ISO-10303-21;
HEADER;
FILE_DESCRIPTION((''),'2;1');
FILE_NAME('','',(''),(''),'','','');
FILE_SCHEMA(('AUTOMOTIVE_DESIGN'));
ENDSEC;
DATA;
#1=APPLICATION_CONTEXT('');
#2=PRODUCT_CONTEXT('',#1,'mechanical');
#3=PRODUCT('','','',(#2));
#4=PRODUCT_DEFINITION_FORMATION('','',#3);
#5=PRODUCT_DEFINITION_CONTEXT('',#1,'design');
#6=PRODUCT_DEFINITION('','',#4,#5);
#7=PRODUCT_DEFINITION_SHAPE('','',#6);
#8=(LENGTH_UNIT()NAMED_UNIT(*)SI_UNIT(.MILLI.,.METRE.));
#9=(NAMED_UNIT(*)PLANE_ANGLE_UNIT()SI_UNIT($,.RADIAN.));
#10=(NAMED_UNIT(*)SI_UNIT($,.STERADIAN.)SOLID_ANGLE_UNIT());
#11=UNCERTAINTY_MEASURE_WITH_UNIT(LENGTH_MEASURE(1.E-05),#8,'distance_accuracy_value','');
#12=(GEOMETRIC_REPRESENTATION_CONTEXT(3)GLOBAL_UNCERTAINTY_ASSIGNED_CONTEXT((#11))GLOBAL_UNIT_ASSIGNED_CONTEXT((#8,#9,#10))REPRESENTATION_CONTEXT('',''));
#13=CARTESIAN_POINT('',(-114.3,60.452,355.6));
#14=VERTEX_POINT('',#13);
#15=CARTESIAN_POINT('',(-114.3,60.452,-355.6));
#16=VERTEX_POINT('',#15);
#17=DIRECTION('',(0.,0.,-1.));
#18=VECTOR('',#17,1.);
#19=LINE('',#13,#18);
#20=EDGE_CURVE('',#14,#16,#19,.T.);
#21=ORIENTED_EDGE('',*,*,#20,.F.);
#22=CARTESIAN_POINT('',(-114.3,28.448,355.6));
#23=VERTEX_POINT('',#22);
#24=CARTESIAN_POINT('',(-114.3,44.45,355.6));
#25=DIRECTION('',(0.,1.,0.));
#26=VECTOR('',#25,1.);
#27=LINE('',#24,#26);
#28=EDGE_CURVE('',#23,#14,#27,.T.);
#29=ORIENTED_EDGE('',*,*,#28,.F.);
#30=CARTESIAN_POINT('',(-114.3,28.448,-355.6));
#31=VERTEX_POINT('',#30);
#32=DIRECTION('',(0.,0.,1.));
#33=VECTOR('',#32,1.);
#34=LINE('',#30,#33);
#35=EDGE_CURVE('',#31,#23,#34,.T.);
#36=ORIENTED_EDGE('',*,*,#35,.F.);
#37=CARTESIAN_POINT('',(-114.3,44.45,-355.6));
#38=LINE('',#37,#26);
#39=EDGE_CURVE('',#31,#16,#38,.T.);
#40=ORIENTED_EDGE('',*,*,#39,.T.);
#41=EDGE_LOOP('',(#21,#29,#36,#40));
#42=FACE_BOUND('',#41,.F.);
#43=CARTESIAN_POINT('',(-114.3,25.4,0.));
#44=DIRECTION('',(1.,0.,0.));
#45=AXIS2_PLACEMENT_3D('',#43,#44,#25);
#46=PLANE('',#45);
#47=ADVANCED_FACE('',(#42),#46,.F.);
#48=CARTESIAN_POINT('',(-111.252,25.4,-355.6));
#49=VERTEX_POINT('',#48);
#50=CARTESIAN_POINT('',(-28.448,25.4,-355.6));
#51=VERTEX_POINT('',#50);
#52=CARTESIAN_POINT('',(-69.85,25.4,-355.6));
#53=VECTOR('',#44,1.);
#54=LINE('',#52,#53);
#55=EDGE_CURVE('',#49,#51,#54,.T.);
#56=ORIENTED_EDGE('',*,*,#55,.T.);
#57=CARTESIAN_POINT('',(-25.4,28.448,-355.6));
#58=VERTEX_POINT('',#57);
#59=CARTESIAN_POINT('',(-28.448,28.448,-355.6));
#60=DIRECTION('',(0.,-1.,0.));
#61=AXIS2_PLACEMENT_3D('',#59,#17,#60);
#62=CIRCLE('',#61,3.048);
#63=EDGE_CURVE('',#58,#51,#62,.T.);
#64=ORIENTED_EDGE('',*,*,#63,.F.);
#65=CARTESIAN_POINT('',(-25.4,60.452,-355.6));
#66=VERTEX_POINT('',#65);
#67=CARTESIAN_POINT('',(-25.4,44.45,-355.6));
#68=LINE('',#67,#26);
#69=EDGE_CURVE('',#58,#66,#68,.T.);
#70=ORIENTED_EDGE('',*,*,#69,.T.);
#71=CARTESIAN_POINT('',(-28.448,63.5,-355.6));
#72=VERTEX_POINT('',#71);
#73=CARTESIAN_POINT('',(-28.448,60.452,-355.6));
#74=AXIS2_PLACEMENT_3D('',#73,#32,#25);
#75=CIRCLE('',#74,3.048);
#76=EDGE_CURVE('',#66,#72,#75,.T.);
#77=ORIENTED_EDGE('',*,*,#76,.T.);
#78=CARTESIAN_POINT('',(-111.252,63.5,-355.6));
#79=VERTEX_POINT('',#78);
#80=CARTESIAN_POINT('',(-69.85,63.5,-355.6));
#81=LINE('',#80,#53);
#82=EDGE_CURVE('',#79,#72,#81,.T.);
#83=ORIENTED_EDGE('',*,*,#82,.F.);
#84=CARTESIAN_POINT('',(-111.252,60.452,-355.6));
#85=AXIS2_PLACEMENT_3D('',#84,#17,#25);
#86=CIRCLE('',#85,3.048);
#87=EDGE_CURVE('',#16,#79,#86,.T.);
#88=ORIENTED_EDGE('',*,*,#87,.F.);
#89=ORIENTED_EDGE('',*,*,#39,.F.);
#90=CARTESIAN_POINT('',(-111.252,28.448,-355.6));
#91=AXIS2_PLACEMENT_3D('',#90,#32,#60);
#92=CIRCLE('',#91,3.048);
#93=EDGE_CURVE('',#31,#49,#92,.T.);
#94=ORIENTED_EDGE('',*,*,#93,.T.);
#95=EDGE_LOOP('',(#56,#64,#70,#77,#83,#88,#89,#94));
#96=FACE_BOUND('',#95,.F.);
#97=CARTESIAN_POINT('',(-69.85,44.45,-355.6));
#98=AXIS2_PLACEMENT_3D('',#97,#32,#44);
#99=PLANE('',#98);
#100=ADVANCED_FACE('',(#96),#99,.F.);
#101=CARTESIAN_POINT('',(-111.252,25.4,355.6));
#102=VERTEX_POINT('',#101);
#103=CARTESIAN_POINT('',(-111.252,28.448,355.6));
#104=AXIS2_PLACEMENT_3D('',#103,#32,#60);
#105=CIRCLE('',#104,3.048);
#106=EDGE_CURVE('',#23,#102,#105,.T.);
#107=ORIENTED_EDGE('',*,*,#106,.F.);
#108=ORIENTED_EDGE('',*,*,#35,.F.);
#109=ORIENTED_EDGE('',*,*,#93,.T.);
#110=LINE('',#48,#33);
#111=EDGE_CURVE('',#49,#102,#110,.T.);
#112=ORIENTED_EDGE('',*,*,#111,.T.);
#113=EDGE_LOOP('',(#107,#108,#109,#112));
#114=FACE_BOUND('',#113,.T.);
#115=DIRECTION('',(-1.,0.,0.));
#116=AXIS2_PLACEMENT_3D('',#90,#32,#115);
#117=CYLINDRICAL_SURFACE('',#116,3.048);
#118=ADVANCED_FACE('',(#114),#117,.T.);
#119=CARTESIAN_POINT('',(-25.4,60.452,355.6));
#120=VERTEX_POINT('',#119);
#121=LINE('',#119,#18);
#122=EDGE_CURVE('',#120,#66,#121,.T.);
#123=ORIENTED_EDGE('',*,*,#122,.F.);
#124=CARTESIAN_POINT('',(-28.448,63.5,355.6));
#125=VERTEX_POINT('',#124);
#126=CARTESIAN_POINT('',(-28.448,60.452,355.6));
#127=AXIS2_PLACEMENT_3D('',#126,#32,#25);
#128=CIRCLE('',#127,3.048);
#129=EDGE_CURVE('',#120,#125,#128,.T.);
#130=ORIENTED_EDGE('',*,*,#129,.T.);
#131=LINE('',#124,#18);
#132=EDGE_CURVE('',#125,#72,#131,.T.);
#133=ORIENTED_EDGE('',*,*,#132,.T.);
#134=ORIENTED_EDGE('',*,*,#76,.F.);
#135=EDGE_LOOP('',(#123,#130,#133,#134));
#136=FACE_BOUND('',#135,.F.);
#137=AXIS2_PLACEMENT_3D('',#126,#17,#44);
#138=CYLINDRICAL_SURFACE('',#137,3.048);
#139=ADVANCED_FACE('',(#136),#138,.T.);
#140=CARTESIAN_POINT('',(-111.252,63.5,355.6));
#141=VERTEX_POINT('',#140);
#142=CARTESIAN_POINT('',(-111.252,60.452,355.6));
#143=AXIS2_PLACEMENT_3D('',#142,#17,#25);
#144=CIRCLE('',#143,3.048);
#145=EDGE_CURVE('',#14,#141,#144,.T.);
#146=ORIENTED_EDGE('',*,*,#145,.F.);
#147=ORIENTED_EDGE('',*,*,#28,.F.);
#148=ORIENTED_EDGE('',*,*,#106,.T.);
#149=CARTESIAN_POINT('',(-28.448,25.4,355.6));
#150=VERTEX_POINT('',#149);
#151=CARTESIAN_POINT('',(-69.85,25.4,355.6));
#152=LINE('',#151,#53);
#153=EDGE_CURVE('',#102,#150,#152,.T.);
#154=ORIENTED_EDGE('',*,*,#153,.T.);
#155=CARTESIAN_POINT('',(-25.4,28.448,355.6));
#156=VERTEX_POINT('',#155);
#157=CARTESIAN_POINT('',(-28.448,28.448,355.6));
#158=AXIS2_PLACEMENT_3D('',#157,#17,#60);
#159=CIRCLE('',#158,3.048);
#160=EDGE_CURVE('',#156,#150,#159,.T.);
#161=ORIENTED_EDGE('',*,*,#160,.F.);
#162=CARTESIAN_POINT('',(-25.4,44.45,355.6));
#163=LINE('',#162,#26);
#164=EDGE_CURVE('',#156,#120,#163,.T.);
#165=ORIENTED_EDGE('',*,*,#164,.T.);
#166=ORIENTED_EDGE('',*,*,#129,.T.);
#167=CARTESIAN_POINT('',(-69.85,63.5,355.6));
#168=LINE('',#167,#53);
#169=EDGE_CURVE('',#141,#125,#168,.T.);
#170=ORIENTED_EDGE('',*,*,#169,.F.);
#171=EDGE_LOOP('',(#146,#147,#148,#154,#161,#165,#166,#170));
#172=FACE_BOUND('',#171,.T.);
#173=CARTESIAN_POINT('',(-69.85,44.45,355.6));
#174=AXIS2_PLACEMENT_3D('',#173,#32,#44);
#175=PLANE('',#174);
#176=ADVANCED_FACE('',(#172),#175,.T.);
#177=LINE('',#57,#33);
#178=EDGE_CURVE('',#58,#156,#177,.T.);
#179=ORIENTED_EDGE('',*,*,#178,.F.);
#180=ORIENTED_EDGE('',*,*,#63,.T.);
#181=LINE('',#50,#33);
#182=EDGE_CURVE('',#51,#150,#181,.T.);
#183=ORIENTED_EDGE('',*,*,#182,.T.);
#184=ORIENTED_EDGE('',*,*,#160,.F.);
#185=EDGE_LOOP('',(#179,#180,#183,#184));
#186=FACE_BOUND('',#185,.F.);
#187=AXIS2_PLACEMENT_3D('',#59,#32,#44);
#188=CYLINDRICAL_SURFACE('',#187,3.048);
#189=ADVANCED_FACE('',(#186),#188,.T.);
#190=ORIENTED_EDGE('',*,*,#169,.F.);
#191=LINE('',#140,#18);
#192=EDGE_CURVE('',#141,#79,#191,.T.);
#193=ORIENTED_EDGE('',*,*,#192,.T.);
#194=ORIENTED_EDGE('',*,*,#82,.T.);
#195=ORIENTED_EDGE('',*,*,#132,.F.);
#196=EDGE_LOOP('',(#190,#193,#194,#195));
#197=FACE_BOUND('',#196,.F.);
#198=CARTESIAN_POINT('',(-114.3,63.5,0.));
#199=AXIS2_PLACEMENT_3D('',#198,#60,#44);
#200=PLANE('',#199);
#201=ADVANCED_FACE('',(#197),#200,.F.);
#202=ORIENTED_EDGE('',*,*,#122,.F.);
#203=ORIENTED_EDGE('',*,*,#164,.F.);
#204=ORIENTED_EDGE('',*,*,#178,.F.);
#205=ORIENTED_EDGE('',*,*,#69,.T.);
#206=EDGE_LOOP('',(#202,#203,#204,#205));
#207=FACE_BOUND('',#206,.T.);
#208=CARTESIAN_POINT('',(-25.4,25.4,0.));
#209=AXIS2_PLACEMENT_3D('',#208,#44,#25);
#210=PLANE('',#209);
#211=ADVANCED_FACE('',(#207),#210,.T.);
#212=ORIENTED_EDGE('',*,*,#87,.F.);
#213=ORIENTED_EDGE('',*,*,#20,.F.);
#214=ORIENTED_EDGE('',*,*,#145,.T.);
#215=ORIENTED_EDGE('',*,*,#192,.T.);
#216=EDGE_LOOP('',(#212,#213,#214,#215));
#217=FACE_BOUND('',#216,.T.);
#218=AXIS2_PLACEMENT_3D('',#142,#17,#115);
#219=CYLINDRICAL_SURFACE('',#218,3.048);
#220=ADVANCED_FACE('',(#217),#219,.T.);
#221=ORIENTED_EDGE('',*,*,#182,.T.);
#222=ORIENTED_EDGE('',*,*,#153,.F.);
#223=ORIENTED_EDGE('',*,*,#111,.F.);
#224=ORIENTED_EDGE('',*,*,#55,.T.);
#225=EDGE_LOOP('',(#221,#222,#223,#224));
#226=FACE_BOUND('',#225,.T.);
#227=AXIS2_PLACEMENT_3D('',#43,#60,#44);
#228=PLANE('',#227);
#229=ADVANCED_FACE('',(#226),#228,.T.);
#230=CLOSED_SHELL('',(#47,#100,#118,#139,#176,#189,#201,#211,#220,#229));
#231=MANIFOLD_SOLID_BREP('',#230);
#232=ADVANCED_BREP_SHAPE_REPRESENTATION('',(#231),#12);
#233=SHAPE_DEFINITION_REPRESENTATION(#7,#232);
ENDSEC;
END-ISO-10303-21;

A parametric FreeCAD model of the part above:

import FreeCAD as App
import Part
import Sketcher
Q = App.Units.Quantity


def edges_at(feature, points):
    """Names of the edges that pass closest to the given points."""
    edges = feature.Shape.Edges
    near = lambda p: min(range(len(edges)), key=lambda i: edges[i].distToShape(Part.Vertex(*p))[0])
    return sorted({f"Edge{near(p) + 1}" for p in points})


def add_polygon(sketch, points):
    """Adds a closed chain of lines whose ends are joined by coincident constraints."""
    first, n = sketch.GeometryCount, len(points)
    for a, b in zip(points, points[1:] + points[:1]):
        sketch.addGeometry(Part.LineSegment(App.Vector(*a, 0), App.Vector(*b, 0)), False)
    for i in range(n):
        sketch.addConstraint(Sketcher.Constraint("Coincident", first + i, 2, first + (i + 1) % n, 1))

doc = App.newDocument("Part")
params = doc.addObject("Spreadsheet::Sheet", "Params")
for row, (alias, value) in enumerate([
    ("sketch1_width", "3.5 in"),
    ("sketch1_height", "1.5 in"),
    ("pad1_length", "28 in"),
    ("fillet_radius", "0.12 in"),
], start=1):
    params.set(f"A{row}", alias)
    params.set(f"B{row}", "=" + value)
    params.setAlias(f"B{row}", alias)

body = doc.addObject("PartDesign::Body", "Body")

sketch1 = body.newObject("Sketcher::SketchObject", "Sketch")
sketch1.AttachmentSupport = (doc.getObject("XY_Plane"), [""])
sketch1.MapMode = "FlatFace"
add_polygon(sketch1, [(-114, 64), (-114, 25), (-25, 25), (-25, 64)])
sketch1.addConstraint(Sketcher.Constraint("Vertical", 0))
sketch1.addConstraint(Sketcher.Constraint("Horizontal", 1))
sketch1.addConstraint(Sketcher.Constraint("Vertical", 2))
sketch1.addConstraint(Sketcher.Constraint("Horizontal", 3))
sketch1.addConstraint(Sketcher.Constraint("DistanceX", 1, 1, 1, 2, Q("3.5 in")))
sketch1.addConstraint(Sketcher.Constraint("DistanceY", 0, 2, 0, 1, Q("1.5 in")))
sketch1.addConstraint(Sketcher.Constraint("DistanceY", -1, 1, 0, 2, Q("1 in")))
sketch1.addConstraint(Sketcher.Constraint("DistanceX", 1, 2, -1, 1, Q("1 in")))
sketch1.setExpression("Constraints[8]", "Params.sketch1_width")
sketch1.setExpression("Constraints[9]", "Params.sketch1_height")
pad1 = body.newObject("PartDesign::Pad", "Pad")
pad1.Profile = sketch1
pad1.setExpression("Length", "Params.pad1_length")
pad1.Midplane = True
doc.recompute()

fillet = body.newObject("PartDesign::Fillet", "Fillet")
fillet.Base = (pad1, edges_at(pad1, [
    (-25.4, 63.5, 0),
    (-114.3, 63.5, 0),
    (-25.4, 25.4, 0),
    (-114.3, 25.4, 0),
]))
fillet.setExpression("Radius", "Params.fillet_radius")

doc.recompute()
